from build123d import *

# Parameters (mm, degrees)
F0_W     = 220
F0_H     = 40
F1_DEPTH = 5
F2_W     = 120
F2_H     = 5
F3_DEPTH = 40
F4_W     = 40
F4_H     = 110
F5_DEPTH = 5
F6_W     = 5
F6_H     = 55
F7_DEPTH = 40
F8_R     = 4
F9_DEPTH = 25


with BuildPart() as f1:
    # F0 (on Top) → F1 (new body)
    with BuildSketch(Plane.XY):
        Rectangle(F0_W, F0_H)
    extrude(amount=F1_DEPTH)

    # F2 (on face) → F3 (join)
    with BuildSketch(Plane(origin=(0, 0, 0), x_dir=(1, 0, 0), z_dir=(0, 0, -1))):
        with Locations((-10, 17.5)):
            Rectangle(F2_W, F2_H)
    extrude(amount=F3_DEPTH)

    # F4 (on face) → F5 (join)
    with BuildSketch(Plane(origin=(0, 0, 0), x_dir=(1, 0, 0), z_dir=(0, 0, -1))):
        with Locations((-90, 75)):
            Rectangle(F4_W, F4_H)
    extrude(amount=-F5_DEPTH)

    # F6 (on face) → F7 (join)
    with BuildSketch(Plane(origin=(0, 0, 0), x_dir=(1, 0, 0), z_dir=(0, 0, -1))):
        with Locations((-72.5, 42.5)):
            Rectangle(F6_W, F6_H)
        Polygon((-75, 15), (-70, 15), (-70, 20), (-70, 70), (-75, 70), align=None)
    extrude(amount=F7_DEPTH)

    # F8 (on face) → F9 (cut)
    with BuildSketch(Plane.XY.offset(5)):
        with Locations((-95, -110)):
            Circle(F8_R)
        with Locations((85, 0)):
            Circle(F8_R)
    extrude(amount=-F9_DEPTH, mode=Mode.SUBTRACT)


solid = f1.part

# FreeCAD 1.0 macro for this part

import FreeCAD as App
import Part
import Sketcher
from FreeCAD import Vector
Q = App.Units.Quantity

doc = App.newDocument("Part")
body = doc.addObject("PartDesign::Body", "Body")

# Sketch on XY plane
sketch1 = doc.addObject("Sketcher::SketchObject", "Sketch")
body.addObject(sketch1)
sketch1.AttachmentSupport = (doc.XY_Plane, [""])
sketch1.MapMode = "FlatFace"
sketch1.addGeometry(Part.LineSegment(Vector(-110, 20, 0), Vector(-110, -20, 0)), False)
sketch1.addGeometry(Part.LineSegment(Vector(-110, -20, 0), Vector(110, -20, 0)), False)
sketch1.addGeometry(Part.LineSegment(Vector(110, -20, 0), Vector(110, 20, 0)), False)
sketch1.addGeometry(Part.LineSegment(Vector(110, 20, 0), Vector(-110, 20, 0)), False)
sketch1.addConstraint(Sketcher.Constraint("Coincident", 0, 2, 1, 1))
sketch1.addConstraint(Sketcher.Constraint("Coincident", 1, 2, 2, 1))
sketch1.addConstraint(Sketcher.Constraint("Coincident", 2, 2, 3, 1))
sketch1.addConstraint(Sketcher.Constraint("Coincident", 3, 2, 0, 1))
sketch1.addConstraint(Sketcher.Constraint("Vertical", 0))
sketch1.addConstraint(Sketcher.Constraint("Horizontal", 1))
sketch1.addConstraint(Sketcher.Constraint("Vertical", 2))
sketch1.addConstraint(Sketcher.Constraint("Horizontal", 3))
sketch1.addConstraint(Sketcher.Constraint("Symmetric", 0, 2, 2, 2, -1, 1))
sketch1.addConstraint(Sketcher.Constraint("DistanceX", 1, 1, 1, 2, Q("220 mm")))
sketch1.addConstraint(Sketcher.Constraint("DistanceY", 0, 2, 0, 1, Q("40 mm")))
pad1 = doc.addObject("PartDesign::Pad", "Pad")
body.addObject(pad1)
pad1.Profile = sketch1
pad1.Length = 5

# Sketch on XY plane
sketch2 = doc.addObject("Sketcher::SketchObject", "Sketch001")
body.addObject(sketch2)
sketch2.AttachmentSupport = (doc.XY_Plane, [""])
sketch2.MapMode = "FlatFace"
sketch2.addGeometry(Part.LineSegment(Vector(-70, -20, 0), Vector(-70, -15, 0)), False)
sketch2.addGeometry(Part.LineSegment(Vector(-70, -15, 0), Vector(50, -15, 0)), False)
sketch2.addGeometry(Part.LineSegment(Vector(50, -15, 0), Vector(50, -20, 0)), False)
sketch2.addGeometry(Part.LineSegment(Vector(50, -20, 0), Vector(-70, -20, 0)), False)
sketch2.addConstraint(Sketcher.Constraint("Coincident", 0, 2, 1, 1))
sketch2.addConstraint(Sketcher.Constraint("Coincident", 1, 2, 2, 1))
sketch2.addConstraint(Sketcher.Constraint("Coincident", 2, 2, 3, 1))
sketch2.addConstraint(Sketcher.Constraint("Coincident", 3, 2, 0, 1))
sketch2.addConstraint(Sketcher.Constraint("Vertical", 0))
sketch2.addConstraint(Sketcher.Constraint("Horizontal", 1))
sketch2.addConstraint(Sketcher.Constraint("Vertical", 2))
sketch2.addConstraint(Sketcher.Constraint("Horizontal", 3))
sketch2.addConstraint(Sketcher.Constraint("DistanceX", 1, 1, 1, 2, Q("120 mm")))
sketch2.addConstraint(Sketcher.Constraint("DistanceY", 0, 1, 0, 2, Q("5 mm")))
sketch2.addConstraint(Sketcher.Constraint("DistanceX", 0, 2, -1, 1, Q("70 mm")))
sketch2.addConstraint(Sketcher.Constraint("DistanceY", 0, 2, -1, 1, Q("15 mm")))
pad2 = doc.addObject("PartDesign::Pad", "Pad001")
body.addObject(pad2)
pad2.Profile = sketch2
pad2.Length = 40
pad2.Reversed = True

# Sketch on XY plane
sketch3 = doc.addObject("Sketcher::SketchObject", "Sketch002")
body.addObject(sketch3)
sketch3.AttachmentSupport = (doc.XY_Plane, [""])
sketch3.MapMode = "FlatFace"
sketch3.addGeometry(Part.LineSegment(Vector(-110, -130, 0), Vector(-110, -20, 0)), False)
sketch3.addGeometry(Part.LineSegment(Vector(-110, -20, 0), Vector(-70, -20, 0)), False)
sketch3.addGeometry(Part.LineSegment(Vector(-70, -20, 0), Vector(-70, -130, 0)), False)
sketch3.addGeometry(Part.LineSegment(Vector(-70, -130, 0), Vector(-110, -130, 0)), False)
sketch3.addConstraint(Sketcher.Constraint("Coincident", 0, 2, 1, 1))
sketch3.addConstraint(Sketcher.Constraint("Coincident", 1, 2, 2, 1))
sketch3.addConstraint(Sketcher.Constraint("Coincident", 2, 2, 3, 1))
sketch3.addConstraint(Sketcher.Constraint("Coincident", 3, 2, 0, 1))
sketch3.addConstraint(Sketcher.Constraint("Vertical", 0))
sketch3.addConstraint(Sketcher.Constraint("Horizontal", 1))
sketch3.addConstraint(Sketcher.Constraint("Vertical", 2))
sketch3.addConstraint(Sketcher.Constraint("Horizontal", 3))
sketch3.addConstraint(Sketcher.Constraint("DistanceX", 1, 1, 1, 2, Q("40 mm")))
sketch3.addConstraint(Sketcher.Constraint("DistanceY", 0, 1, 0, 2, Q("110 mm")))
sketch3.addConstraint(Sketcher.Constraint("DistanceX", 0, 2, -1, 1, Q("110 mm")))
sketch3.addConstraint(Sketcher.Constraint("DistanceY", 0, 2, -1, 1, Q("20 mm")))
pad3 = doc.addObject("PartDesign::Pad", "Pad002")
body.addObject(pad3)
pad3.Profile = sketch3
pad3.Length = 5

# Sketch on XY plane
sketch4 = doc.addObject("Sketcher::SketchObject", "Sketch003")
body.addObject(sketch4)
sketch4.AttachmentSupport = (doc.XY_Plane, [""])
sketch4.MapMode = "FlatFace"
sketch4.addGeometry(Part.LineSegment(Vector(-75, -70, 0), Vector(-75, -15, 0)), False)
sketch4.addGeometry(Part.LineSegment(Vector(-75, -15, 0), Vector(-70, -15, 0)), False)
sketch4.addGeometry(Part.LineSegment(Vector(-70, -15, 0), Vector(-70, -70, 0)), False)
sketch4.addGeometry(Part.LineSegment(Vector(-70, -70, 0), Vector(-75, -70, 0)), False)
sketch4.addConstraint(Sketcher.Constraint("Coincident", 0, 2, 1, 1))
sketch4.addConstraint(Sketcher.Constraint("Coincident", 1, 2, 2, 1))
sketch4.addConstraint(Sketcher.Constraint("Coincident", 2, 2, 3, 1))
sketch4.addConstraint(Sketcher.Constraint("Coincident", 3, 2, 0, 1))
sketch4.addConstraint(Sketcher.Constraint("Vertical", 0))
sketch4.addConstraint(Sketcher.Constraint("Horizontal", 1))
sketch4.addConstraint(Sketcher.Constraint("Vertical", 2))
sketch4.addConstraint(Sketcher.Constraint("Horizontal", 3))
sketch4.addConstraint(Sketcher.Constraint("DistanceX", 1, 1, 1, 2, Q("5 mm")))
sketch4.addConstraint(Sketcher.Constraint("DistanceY", 0, 1, 0, 2, Q("55 mm")))
sketch4.addConstraint(Sketcher.Constraint("DistanceX", 0, 2, -1, 1, Q("75 mm")))
sketch4.addConstraint(Sketcher.Constraint("DistanceY", 0, 2, -1, 1, Q("15 mm")))
pad4 = doc.addObject("PartDesign::Pad", "Pad003")
body.addObject(pad4)
pad4.Profile = sketch4
pad4.Length = 40
pad4.Reversed = True

# Sketch on XY plane
sketch5 = doc.addObject("Sketcher::SketchObject", "Sketch004")
body.addObject(sketch5)
sketch5.AttachmentSupport = (doc.XY_Plane, [""])
sketch5.MapMode = "FlatFace"
sketch5.AttachmentOffset = App.Placement(Vector(0, 0, 5), App.Rotation())
sketch5.addGeometry(Part.Circle(Vector(-95, -110, 0), Vector(0, 0, 1), 4), False)
sketch5.addGeometry(Part.Circle(Vector(85, 0, 0), Vector(0, 0, 1), 4), False)
sketch5.addConstraint(Sketcher.Constraint("Equal", 0, 1))
sketch5.addConstraint(Sketcher.Constraint("PointOnObject", 1, 3, -1))
sketch5.addConstraint(Sketcher.Constraint("Diameter", 0, Q("8 mm")))
sketch5.addConstraint(Sketcher.Constraint("DistanceX", 0, 3, -1, 1, Q("95 mm")))
sketch5.addConstraint(Sketcher.Constraint("DistanceY", 0, 3, -1, 1, Q("110 mm")))
sketch5.addConstraint(Sketcher.Constraint("DistanceX", -1, 1, 1, 3, Q("85 mm")))
pocket1 = doc.addObject("PartDesign::Pocket", "Pocket")
body.addObject(pocket1)
pocket1.Profile = sketch5
pocket1.Length = 25

doc.recompute()
